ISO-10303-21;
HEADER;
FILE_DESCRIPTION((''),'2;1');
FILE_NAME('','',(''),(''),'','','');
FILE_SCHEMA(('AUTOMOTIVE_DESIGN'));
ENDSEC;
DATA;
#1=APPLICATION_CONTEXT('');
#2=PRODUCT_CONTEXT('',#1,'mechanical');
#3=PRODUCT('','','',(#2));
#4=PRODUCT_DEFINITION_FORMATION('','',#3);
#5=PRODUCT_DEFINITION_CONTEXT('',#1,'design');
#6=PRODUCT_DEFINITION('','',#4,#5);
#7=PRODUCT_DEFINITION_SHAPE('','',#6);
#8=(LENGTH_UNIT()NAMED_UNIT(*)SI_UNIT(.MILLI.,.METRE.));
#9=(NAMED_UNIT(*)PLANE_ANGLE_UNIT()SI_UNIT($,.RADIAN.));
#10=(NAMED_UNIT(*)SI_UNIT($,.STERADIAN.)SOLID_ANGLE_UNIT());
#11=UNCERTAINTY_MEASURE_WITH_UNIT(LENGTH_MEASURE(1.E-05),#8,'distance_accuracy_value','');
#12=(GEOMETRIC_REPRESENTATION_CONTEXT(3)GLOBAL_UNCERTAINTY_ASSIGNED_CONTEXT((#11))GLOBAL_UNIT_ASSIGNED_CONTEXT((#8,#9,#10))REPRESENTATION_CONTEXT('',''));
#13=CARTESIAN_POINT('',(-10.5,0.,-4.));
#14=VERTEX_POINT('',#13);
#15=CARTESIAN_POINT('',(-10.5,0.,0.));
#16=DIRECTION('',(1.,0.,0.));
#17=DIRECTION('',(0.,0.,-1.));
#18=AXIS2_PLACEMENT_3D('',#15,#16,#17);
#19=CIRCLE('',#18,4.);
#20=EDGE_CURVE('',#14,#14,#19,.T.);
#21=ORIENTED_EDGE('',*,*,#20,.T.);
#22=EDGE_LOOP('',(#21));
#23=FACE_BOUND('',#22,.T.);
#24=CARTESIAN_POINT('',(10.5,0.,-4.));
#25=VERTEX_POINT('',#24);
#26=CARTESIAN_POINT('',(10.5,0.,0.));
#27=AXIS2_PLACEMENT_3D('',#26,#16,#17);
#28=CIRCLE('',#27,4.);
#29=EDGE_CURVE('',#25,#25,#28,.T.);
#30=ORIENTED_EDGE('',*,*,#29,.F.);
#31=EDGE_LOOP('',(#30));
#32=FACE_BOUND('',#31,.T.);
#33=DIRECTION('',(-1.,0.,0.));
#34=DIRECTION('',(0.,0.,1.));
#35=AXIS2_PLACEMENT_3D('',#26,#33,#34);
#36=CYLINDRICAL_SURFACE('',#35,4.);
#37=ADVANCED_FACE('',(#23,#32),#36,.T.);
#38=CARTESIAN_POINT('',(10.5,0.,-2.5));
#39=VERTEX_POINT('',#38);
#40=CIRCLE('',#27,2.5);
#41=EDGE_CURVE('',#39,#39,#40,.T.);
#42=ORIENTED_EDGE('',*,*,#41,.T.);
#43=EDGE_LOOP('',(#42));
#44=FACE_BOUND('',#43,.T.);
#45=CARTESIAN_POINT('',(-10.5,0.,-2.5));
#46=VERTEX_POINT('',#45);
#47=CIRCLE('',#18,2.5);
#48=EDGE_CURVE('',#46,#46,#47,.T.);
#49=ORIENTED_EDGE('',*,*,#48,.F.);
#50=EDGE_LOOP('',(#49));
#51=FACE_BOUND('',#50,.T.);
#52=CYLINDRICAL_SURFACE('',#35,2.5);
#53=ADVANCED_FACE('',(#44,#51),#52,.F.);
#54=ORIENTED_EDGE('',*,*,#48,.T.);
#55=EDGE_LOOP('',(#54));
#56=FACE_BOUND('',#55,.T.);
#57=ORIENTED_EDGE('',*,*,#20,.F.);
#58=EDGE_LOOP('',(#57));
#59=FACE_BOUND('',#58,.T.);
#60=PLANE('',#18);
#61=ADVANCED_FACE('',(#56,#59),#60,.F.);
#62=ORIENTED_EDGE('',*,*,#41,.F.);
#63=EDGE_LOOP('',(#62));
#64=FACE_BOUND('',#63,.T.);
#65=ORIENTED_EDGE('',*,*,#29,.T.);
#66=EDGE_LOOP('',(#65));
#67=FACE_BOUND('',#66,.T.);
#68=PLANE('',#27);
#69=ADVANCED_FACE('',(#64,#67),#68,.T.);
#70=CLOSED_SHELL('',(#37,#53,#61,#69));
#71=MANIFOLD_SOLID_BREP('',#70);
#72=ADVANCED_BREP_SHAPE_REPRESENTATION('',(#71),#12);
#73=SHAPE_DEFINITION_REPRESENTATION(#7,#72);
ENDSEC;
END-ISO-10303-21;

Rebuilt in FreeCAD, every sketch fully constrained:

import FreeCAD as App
import Part
import Sketcher

V = App.Vector

doc = App.newDocument("Part")
body = doc.addObject("PartDesign::Body", "Body")

sketch1 = body.newObject("Sketcher::SketchObject", "Sketch")
sketch1.AttachmentSupport = (doc.getObject("YZ_Plane"), [""])
sketch1.MapMode = "FlatFace"
sketch1.addGeometry([
    Part.Circle(V(0, 0, 0), V(0, 0, 1), 4),
    Part.Circle(V(0, 0, 0), V(0, 0, 1), 2.5),
], False)
sketch1.addConstraint([
    Sketcher.Constraint("Coincident", 0, 3, -1, 1),
    Sketcher.Constraint("Coincident", 1, 3, -1, 1),
    Sketcher.Constraint("Diameter", 0, 8.0),
    Sketcher.Constraint("Diameter", 1, 5.0),
])
pad1 = body.newObject("PartDesign::Pad", "Pad")
pad1.Profile = sketch1
pad1.Length = 21
pad1.Midplane = True

doc.recompute()
